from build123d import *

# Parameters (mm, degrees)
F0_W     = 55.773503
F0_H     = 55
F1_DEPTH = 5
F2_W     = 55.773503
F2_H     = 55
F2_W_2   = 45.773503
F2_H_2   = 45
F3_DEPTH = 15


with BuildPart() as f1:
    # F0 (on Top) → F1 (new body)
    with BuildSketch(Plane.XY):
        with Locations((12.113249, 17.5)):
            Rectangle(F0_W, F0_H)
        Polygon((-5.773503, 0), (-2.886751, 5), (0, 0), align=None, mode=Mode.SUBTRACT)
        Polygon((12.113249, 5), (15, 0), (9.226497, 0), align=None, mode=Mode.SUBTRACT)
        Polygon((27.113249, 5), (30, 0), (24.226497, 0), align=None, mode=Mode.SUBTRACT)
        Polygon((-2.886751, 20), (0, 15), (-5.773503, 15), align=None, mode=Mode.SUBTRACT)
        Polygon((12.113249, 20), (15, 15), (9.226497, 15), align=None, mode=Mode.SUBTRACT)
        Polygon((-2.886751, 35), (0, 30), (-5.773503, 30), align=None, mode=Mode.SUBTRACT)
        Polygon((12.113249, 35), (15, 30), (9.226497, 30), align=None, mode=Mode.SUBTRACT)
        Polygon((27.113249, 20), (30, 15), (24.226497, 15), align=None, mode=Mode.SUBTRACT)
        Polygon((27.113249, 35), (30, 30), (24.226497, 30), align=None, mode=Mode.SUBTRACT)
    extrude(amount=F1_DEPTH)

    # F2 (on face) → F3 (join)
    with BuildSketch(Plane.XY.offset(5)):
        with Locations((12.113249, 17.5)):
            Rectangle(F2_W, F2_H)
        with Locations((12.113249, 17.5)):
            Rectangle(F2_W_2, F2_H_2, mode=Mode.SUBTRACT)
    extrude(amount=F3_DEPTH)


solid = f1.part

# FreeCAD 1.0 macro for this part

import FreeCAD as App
import Part
import Sketcher
from FreeCAD import Vector
Q = App.Units.Quantity

doc = App.newDocument("Part")
body = doc.addObject("PartDesign::Body", "Body")

# Sketch on XY plane
sketch1 = body.newObject("Sketcher::SketchObject", "Sketch")
sketch1.AttachmentSupport = (doc.getObject("XY_Plane"), [""])
sketch1.MapMode = "FlatFace"
sketch1.addGeometry([
    Part.LineSegment(Vector(-16, 45, 0), Vector(-16, -10, 0)),  # 0
    Part.LineSegment(Vector(-16, -10, 0), Vector(40, -10, 0)),  # 1
    Part.LineSegment(Vector(40, -10, 0), Vector(40, 45, 0)),  # 2
    Part.LineSegment(Vector(40, 45, 0), Vector(-16, 45, 0)),  # 3
    Part.LineSegment(Vector(0, 0, 0), Vector(-6, 0, 0)),  # 4
    Part.LineSegment(Vector(-6, 0, 0), Vector(-3, 5, 0)),  # 5
    Part.LineSegment(Vector(-3, 5, 0), Vector(0, 0, 0)),  # 6
    Part.LineSegment(Vector(9, 0, 0), Vector(12, 5, 0)),  # 7
    Part.LineSegment(Vector(12, 5, 0), Vector(15, 0, 0)),  # 8
    Part.LineSegment(Vector(15, 0, 0), Vector(9, 0, 0)),  # 9
    Part.LineSegment(Vector(24, 0, 0), Vector(27, 5, 0)),  # 10
    Part.LineSegment(Vector(27, 5, 0), Vector(30, 0, 0)),  # 11
    Part.LineSegment(Vector(30, 0, 0), Vector(24, 0, 0)),  # 12
    Part.LineSegment(Vector(-6, 15, 0), Vector(-3, 20, 0)),  # 13
    Part.LineSegment(Vector(-3, 20, 0), Vector(0, 15, 0)),  # 14
    Part.LineSegment(Vector(0, 15, 0), Vector(-6, 15, 0)),  # 15
    Part.LineSegment(Vector(-6, 30, 0), Vector(-3, 35, 0)),  # 16
    Part.LineSegment(Vector(-3, 35, 0), Vector(0, 30, 0)),  # 17
    Part.LineSegment(Vector(0, 30, 0), Vector(-6, 30, 0)),  # 18
    Part.LineSegment(Vector(9, 15, 0), Vector(12, 20, 0)),  # 19
    Part.LineSegment(Vector(12, 20, 0), Vector(15, 15, 0)),  # 20
    Part.LineSegment(Vector(15, 15, 0), Vector(9, 15, 0)),  # 21
    Part.LineSegment(Vector(24, 15, 0), Vector(27, 20, 0)),  # 22
    Part.LineSegment(Vector(27, 20, 0), Vector(30, 15, 0)),  # 23
    Part.LineSegment(Vector(30, 15, 0), Vector(24, 15, 0)),  # 24
    Part.LineSegment(Vector(9, 30, 0), Vector(12, 35, 0)),  # 25
    Part.LineSegment(Vector(12, 35, 0), Vector(15, 30, 0)),  # 26
    Part.LineSegment(Vector(15, 30, 0), Vector(9, 30, 0)),  # 27
    Part.LineSegment(Vector(24, 30, 0), Vector(27, 35, 0)),  # 28
    Part.LineSegment(Vector(27, 35, 0), Vector(30, 30, 0)),  # 29
    Part.LineSegment(Vector(30, 30, 0), Vector(24, 30, 0)),  # 30
], False)
sketch1.addConstraint([
    Sketcher.Constraint("Coincident", 0, 2, 1, 1),
    Sketcher.Constraint("Coincident", 1, 2, 2, 1),
    Sketcher.Constraint("Coincident", 2, 2, 3, 1),
    Sketcher.Constraint("Coincident", 3, 2, 0, 1),
    Sketcher.Constraint("Coincident", 4, 2, 5, 1),
    Sketcher.Constraint("Coincident", 5, 2, 6, 1),
    Sketcher.Constraint("Coincident", 6, 2, 4, 1),
    Sketcher.Constraint("Coincident", 7, 2, 8, 1),
    Sketcher.Constraint("Coincident", 8, 2, 9, 1),
    Sketcher.Constraint("Coincident", 9, 2, 7, 1),
    Sketcher.Constraint("Coincident", 10, 2, 11, 1),
    Sketcher.Constraint("Coincident", 11, 2, 12, 1),
    Sketcher.Constraint("Coincident", 12, 2, 10, 1),
    Sketcher.Constraint("Coincident", 13, 2, 14, 1),
    Sketcher.Constraint("Coincident", 14, 2, 15, 1),
    Sketcher.Constraint("Coincident", 15, 2, 13, 1),
    Sketcher.Constraint("Coincident", 16, 2, 17, 1),
    Sketcher.Constraint("Coincident", 17, 2, 18, 1),
    Sketcher.Constraint("Coincident", 18, 2, 16, 1),
    Sketcher.Constraint("Coincident", 19, 2, 20, 1),
    Sketcher.Constraint("Coincident", 20, 2, 21, 1),
    Sketcher.Constraint("Coincident", 21, 2, 19, 1),
    Sketcher.Constraint("Coincident", 22, 2, 23, 1),
    Sketcher.Constraint("Coincident", 23, 2, 24, 1),
    Sketcher.Constraint("Coincident", 24, 2, 22, 1),
    Sketcher.Constraint("Coincident", 25, 2, 26, 1),
    Sketcher.Constraint("Coincident", 26, 2, 27, 1),
    Sketcher.Constraint("Coincident", 27, 2, 25, 1),
    Sketcher.Constraint("Coincident", 28, 2, 29, 1),
    Sketcher.Constraint("Coincident", 29, 2, 30, 1),
    Sketcher.Constraint("Coincident", 30, 2, 28, 1),
    Sketcher.Constraint("Vertical", 0),
    Sketcher.Constraint("Horizontal", 1),
    Sketcher.Constraint("Vertical", 2),
    Sketcher.Constraint("Horizontal", 3),
    Sketcher.Constraint("Horizontal", 4),
    Sketcher.Constraint("Horizontal", 9),
    Sketcher.Constraint("Horizontal", 12),
    Sketcher.Constraint("Horizontal", 15),
    Sketcher.Constraint("Horizontal", 18),
    Sketcher.Constraint("Horizontal", 21),
    Sketcher.Constraint("Horizontal", 24),
    Sketcher.Constraint("Horizontal", 27),
    Sketcher.Constraint("Horizontal", 30),
    Sketcher.Constraint("Coincident", 6, 2, -1, 1),
    Sketcher.Constraint("PointOnObject", 8, 2, -1),
    Sketcher.Constraint("PointOnObject", 11, 2, -1),
    Sketcher.Constraint("PointOnObject", 14, 2, -2),
    Sketcher.Constraint("PointOnObject", 17, 2, -2),
    Sketcher.Constraint("Parallel", 5, 7),
    Sketcher.Constraint("Parallel", 6, 8),
    Sketcher.Constraint("Parallel", 7, 10),
    Sketcher.Constraint("Parallel", 8, 11),
    Sketcher.Constraint("Parallel", 10, 13),
    Sketcher.Constraint("Parallel", 11, 14),
    Sketcher.Constraint("Parallel", 13, 16),
    Sketcher.Constraint("Parallel", 14, 17),
    Sketcher.Constraint("Parallel", 16, 19),
    Sketcher.Constraint("Parallel", 17, 20),
    Sketcher.Constraint("Parallel", 19, 22),
    Sketcher.Constraint("Parallel", 20, 23),
    Sketcher.Constraint("Parallel", 22, 25),
    Sketcher.Constraint("Parallel", 23, 26),
    Sketcher.Constraint("Parallel", 25, 28),
    Sketcher.Constraint("Parallel", 26, 29),
    Sketcher.Constraint("Horizontal", 5, 2, 7, 2),
    Sketcher.Constraint("Horizontal", 7, 2, 10, 2),
    Sketcher.Constraint("Horizontal", 13, 2, 19, 2),
    Sketcher.Constraint("Horizontal", 15, 2, 20, 2),
    Sketcher.Constraint("Horizontal", 19, 2, 22, 2),
    Sketcher.Constraint("Horizontal", 21, 2, 23, 2),
    Sketcher.Constraint("Horizontal", 16, 2, 25, 2),
    Sketcher.Constraint("Horizontal", 18, 2, 26, 2),
    Sketcher.Constraint("Horizontal", 25, 2, 28, 2),
    Sketcher.Constraint("Horizontal", 27, 2, 29, 2),
    Sketcher.Constraint("Vertical", 5, 2, 13, 2),
    Sketcher.Constraint("Vertical", 13, 2, 16, 2),
    Sketcher.Constraint("Vertical", 7, 2, 19, 2),
    Sketcher.Constraint("Vertical", 10, 2, 22, 2),
    Sketcher.Constraint("Vertical", 19, 2, 25, 2),
    Sketcher.Constraint("Vertical", 22, 2, 28, 2),
    Sketcher.Constraint("Equal", 5, 6),
    Sketcher.Constraint("DistanceY", 0, 2, 0, 1, 55.0),
    Sketcher.Constraint("Angle", 5, Q("59.999994 deg")),
    Sketcher.Constraint("DistanceY", 0, 2, -1, 1, 10.0),
    Sketcher.Constraint("DistanceX", -1, 1, 1, 2, 40.0),
    Sketcher.Constraint("DistanceY", -1, 1, 5, 2, 5.0),
    Sketcher.Constraint("DistanceX", -1, 1, 8, 2, 15.0),
    Sketcher.Constraint("DistanceX", -1, 1, 11, 2, 30.0),
    Sketcher.Constraint("DistanceY", -1, 1, 13, 2, 20.0),
    Sketcher.Constraint("DistanceY", -1, 1, 16, 2, 35.0),
    Sketcher.Constraint("DistanceX", 0, 2, 4, 2, 9.999999),
])
pad1 = body.newObject("PartDesign::Pad", "Pad")
pad1.Profile = sketch1
pad1.Length = 5

# Sketch on XY plane
sketch2 = body.newObject("Sketcher::SketchObject", "Sketch001")
sketch2.AttachmentSupport = (doc.getObject("XY_Plane"), [""])
sketch2.MapMode = "FlatFace"
sketch2.AttachmentOffset = App.Placement(Vector(0, 0, 5), App.Rotation())
sketch2.addGeometry([
    Part.LineSegment(Vector(-16, 45, 0), Vector(-16, -10, 0)),  # 0
    Part.LineSegment(Vector(-16, -10, 0), Vector(40, -10, 0)),  # 1
    Part.LineSegment(Vector(40, -10, 0), Vector(40, 45, 0)),  # 2
    Part.LineSegment(Vector(40, 45, 0), Vector(-16, 45, 0)),  # 3
    Part.LineSegment(Vector(35, -5, 0), Vector(-11, -5, 0)),  # 4
    Part.LineSegment(Vector(-11, -5, 0), Vector(-11, 40, 0)),  # 5
    Part.LineSegment(Vector(-11, 40, 0), Vector(35, 40, 0)),  # 6
    Part.LineSegment(Vector(35, 40, 0), Vector(35, -5, 0)),  # 7
], False)
sketch2.addConstraint([
    Sketcher.Constraint("Coincident", 0, 2, 1, 1),
    Sketcher.Constraint("Coincident", 1, 2, 2, 1),
    Sketcher.Constraint("Coincident", 2, 2, 3, 1),
    Sketcher.Constraint("Coincident", 3, 2, 0, 1),
    Sketcher.Constraint("Coincident", 4, 2, 5, 1),
    Sketcher.Constraint("Coincident", 5, 2, 6, 1),
    Sketcher.Constraint("Coincident", 6, 2, 7, 1),
    Sketcher.Constraint("Coincident", 7, 2, 4, 1),
    Sketcher.Constraint("Vertical", 0),
    Sketcher.Constraint("Horizontal", 1),
    Sketcher.Constraint("Vertical", 2),
    Sketcher.Constraint("Horizontal", 3),
    Sketcher.Constraint("Horizontal", 4),
    Sketcher.Constraint("Vertical", 5),
    Sketcher.Constraint("Horizontal", 6),
    Sketcher.Constraint("Vertical", 7),
    Sketcher.Constraint("DistanceY", 0, 2, 0, 1, 55.0),
    Sketcher.Constraint("DistanceY", 5, 1, 5, 2, 45.0),
    Sketcher.Constraint("DistanceY", 0, 2, -1, 1, 10.0),
    Sketcher.Constraint("DistanceX", -1, 1, 1, 2, 40.0),
    Sketcher.Constraint("DistanceY", 4, 2, -1, 1, 5.0),
    Sketcher.Constraint("DistanceX", -1, 1, 6, 2, 35.0),
    Sketcher.Constraint("DistanceX", 0, 2, 4, 2, 5.0),
    Sketcher.Constraint("DistanceX", 1, 1, 1, 2, 55.773503),
])
pad2 = body.newObject("PartDesign::Pad", "Pad001")
pad2.Profile = sketch2
pad2.Length = 15

doc.recompute()
